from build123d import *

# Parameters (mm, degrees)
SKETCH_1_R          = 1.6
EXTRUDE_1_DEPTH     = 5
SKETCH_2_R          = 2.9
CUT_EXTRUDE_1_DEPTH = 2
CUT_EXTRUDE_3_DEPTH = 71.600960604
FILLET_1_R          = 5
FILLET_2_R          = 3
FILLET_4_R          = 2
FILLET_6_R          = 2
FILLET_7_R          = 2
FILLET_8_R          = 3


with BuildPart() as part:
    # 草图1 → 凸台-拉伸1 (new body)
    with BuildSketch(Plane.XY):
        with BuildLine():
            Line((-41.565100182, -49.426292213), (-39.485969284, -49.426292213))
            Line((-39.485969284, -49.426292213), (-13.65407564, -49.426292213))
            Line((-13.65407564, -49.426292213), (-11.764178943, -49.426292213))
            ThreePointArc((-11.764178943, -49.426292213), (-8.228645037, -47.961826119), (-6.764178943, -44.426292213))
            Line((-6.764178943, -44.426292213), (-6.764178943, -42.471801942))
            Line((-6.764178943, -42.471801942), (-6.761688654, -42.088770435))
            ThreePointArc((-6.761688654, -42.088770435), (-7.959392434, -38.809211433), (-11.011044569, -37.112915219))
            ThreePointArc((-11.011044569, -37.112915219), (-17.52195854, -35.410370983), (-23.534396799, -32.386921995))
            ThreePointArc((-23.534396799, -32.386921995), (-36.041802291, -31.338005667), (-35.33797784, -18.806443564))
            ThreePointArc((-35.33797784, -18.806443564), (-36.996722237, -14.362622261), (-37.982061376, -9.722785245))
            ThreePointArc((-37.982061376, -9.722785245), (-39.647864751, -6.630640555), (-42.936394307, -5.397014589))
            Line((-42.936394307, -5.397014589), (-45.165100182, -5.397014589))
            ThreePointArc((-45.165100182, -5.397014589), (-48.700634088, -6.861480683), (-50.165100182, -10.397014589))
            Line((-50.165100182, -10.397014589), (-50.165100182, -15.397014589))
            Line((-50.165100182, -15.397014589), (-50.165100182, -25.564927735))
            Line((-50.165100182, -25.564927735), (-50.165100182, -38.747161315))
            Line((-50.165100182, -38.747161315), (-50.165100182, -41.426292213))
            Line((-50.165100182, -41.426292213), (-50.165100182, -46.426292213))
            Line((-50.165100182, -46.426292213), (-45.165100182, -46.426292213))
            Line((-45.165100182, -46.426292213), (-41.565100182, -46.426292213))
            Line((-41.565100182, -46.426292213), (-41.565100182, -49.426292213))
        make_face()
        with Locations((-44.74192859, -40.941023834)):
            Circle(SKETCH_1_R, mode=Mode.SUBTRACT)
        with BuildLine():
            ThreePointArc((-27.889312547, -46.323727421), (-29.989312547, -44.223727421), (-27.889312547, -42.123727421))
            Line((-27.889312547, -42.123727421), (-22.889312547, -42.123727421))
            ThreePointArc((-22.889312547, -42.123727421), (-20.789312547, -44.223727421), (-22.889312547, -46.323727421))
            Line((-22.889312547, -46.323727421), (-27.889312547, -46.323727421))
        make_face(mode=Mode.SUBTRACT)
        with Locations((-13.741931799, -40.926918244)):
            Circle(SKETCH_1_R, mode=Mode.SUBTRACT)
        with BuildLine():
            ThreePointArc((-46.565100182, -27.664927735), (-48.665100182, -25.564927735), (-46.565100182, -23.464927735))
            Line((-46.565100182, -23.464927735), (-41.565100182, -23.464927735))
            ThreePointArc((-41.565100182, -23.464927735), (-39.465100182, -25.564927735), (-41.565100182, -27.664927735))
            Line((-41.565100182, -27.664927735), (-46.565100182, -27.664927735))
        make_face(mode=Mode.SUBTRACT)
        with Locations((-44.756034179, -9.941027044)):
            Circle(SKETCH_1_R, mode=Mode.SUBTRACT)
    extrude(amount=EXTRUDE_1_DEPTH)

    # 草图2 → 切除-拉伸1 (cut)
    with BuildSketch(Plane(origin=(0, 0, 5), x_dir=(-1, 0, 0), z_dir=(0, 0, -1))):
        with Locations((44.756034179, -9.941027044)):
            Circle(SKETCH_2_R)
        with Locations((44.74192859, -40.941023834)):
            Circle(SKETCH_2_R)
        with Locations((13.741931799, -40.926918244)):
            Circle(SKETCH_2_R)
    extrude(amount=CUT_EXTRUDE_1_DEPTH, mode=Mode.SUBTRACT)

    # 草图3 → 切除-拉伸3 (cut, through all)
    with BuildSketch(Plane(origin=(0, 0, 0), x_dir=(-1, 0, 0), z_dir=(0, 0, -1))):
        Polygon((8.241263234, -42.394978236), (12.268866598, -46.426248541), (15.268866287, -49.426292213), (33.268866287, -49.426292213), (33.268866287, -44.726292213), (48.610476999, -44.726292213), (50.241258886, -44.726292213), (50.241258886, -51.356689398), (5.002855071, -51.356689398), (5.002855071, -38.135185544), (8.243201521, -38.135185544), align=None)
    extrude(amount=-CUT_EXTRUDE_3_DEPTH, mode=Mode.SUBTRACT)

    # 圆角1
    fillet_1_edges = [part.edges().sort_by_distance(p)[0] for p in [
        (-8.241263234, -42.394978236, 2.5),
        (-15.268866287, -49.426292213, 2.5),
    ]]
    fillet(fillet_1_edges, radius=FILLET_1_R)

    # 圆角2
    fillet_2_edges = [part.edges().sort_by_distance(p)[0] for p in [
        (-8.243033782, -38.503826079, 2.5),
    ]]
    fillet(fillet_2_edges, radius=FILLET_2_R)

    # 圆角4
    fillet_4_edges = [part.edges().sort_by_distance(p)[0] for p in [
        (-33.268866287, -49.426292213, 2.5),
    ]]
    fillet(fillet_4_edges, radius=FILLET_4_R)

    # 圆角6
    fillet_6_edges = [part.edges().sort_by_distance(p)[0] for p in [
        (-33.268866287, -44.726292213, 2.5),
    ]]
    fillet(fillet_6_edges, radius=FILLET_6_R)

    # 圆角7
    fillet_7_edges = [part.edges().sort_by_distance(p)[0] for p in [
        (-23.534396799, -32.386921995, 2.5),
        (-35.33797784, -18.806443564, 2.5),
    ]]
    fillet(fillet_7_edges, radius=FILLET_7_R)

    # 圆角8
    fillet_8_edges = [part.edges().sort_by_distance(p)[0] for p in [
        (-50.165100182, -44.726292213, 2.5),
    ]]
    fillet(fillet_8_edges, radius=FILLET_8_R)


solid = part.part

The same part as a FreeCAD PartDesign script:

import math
import FreeCAD as App
import Part
import Sketcher

V = App.Vector
Q = App.Units.Quantity


def edges_at(feature, points):
    """Names of the edges that pass closest to the given points."""
    edges = feature.Shape.Edges
    near = lambda p: min(range(len(edges)), key=lambda i: edges[i].distToShape(Part.Vertex(*p))[0])
    return sorted({f"Edge{near(p) + 1}" for p in points})

doc = App.newDocument("Part")
params = doc.addObject("Spreadsheet::Sheet", "Params")
for row, (alias, value) in enumerate([
    ("sketch1_radius", "5 mm"),
    ("sketch1_radius2", "9 mm"),
    ("sketch1_diameter", "3.2 mm"),
    ("sketch1_radius3", "2.1 mm"),
    ("sketch1_width", "5 mm"),
    ("pad1_length", "5 mm"),
    ("sketch2_diameter", "5.8 mm"),
    ("pocket1_length", "2 mm"),
    ("sketch3_width", "18 mm"),
    ("sketch3_height", "4.7 mm"),
    ("fillet_radius", "5 mm"),
    ("fillet2_radius", "3 mm"),
    ("fillet3_radius", "2 mm"),
    ("fillet4_radius", "2 mm"),
    ("fillet5_radius", "2 mm"),
    ("fillet6_radius", "3 mm"),
], start=1):
    params.set(f"A{row}", alias)
    params.set(f"B{row}", "=" + value)
    params.setAlias(f"B{row}", alias)

body = doc.addObject("PartDesign::Body", "Body")

# Sketch on XY plane
sketch1 = body.newObject("Sketcher::SketchObject", "Sketch")
sketch1.AttachmentSupport = (doc.getObject("XY_Plane"), [""])
sketch1.MapMode = "FlatFace"
sketch1.addGeometry(Part.LineSegment(V(-41.5651, -49.426292, 0), V(-11.764179, -49.426292, 0)), False)
sketch1.addGeometry(Part.ArcOfCircle(Part.Circle(V(-11.764179, -44.426292, 0), V(0, 0, 1), 5), math.radians(-90), math.radians(0)), False)
sketch1.addGeometry(Part.LineSegment(V(-6.764179, -44.426292, 0), V(-6.764179, -42.471802, 0)), False)
sketch1.addGeometry(Part.LineSegment(V(-6.764179, -42.471802, 0), V(-6.761689, -42.08877, 0)), False)
sketch1.addGeometry(Part.ArcOfCircle(Part.Circle(V(-11.761583, -42.056263, 0), V(0, 0, 1), 5), math.radians(-0.372505), math.radians(81.366833)), False)
sketch1.addGeometry(Part.ArcOfCircle(Part.Circle(V(-6.195685, -5.397015, 0), V(0, 0, 1), 32.079371), math.radians(-122.717284), math.radians(-98.633167)), False)
sketch1.addGeometry(Part.ArcOfCircle(Part.Circle(V(-29.248983, -25.433973, 0), V(0, 0, 1), 9), math.radians(132.57502), math.radians(309.416574)), False)
sketch1.addGeometry(Part.ArcOfCircle(Part.Circle(V(-6.195684, -5.397015, 0), V(0, 0, 1), 32.079371), math.radians(-172.250293), math.radians(-155.291121)), False)
sketch1.addGeometry(Part.ArcOfCircle(Part.Circle(V(-42.936394, -10.397015, 0), V(0, 0, 1), 5), math.radians(7.749707), math.radians(90)), False)
sketch1.addGeometry(Part.LineSegment(V(-42.936394, -5.397015, 0), V(-45.1651, -5.397015, 0)), False)
sketch1.addGeometry(Part.ArcOfCircle(Part.Circle(V(-45.1651, -10.397015, 0), V(0, 0, 1), 5), math.radians(90), math.radians(180)), False)
sketch1.addGeometry(Part.LineSegment(V(-50.1651, -10.397015, 0), V(-50.1651, -46.426292, 0)), False)
sketch1.addGeometry(Part.LineSegment(V(-50.1651, -46.426292, 0), V(-41.5651, -46.426292, 0)), False)
sketch1.addGeometry(Part.LineSegment(V(-41.5651, -46.426292, 0), V(-41.5651, -49.426292, 0)), False)
sketch1.addGeometry(Part.Circle(V(-44.741929, -40.941024, 0), V(0, 0, 1), 1.6), False)
sketch1.addGeometry(Part.LineSegment(V(-22.889313, -46.323727, 0), V(-27.889313, -46.323727, 0)), False)
sketch1.addGeometry(Part.ArcOfCircle(Part.Circle(V(-27.889313, -44.223727, 0), V(0, 0, 1), 2.1), math.radians(90), math.radians(270)), False)
sketch1.addGeometry(Part.LineSegment(V(-27.889313, -42.123727, 0), V(-22.889313, -42.123727, 0)), False)
sketch1.addGeometry(Part.ArcOfCircle(Part.Circle(V(-22.889313, -44.223727, 0), V(0, 0, 1), 2.1), math.radians(-90), math.radians(90)), False)
sketch1.addGeometry(Part.Circle(V(-13.741932, -40.926918, 0), V(0, 0, 1), 1.6), False)
sketch1.addGeometry(Part.LineSegment(V(-41.5651, -27.664928, 0), V(-46.5651, -27.664928, 0)), False)
sketch1.addGeometry(Part.ArcOfCircle(Part.Circle(V(-46.5651, -25.564928, 0), V(0, 0, 1), 2.1), math.radians(90), math.radians(270)), False)
sketch1.addGeometry(Part.LineSegment(V(-46.5651, -23.464928, 0), V(-41.5651, -23.464928, 0)), False)
sketch1.addGeometry(Part.ArcOfCircle(Part.Circle(V(-41.5651, -25.564928, 0), V(0, 0, 1), 2.1), math.radians(-90), math.radians(90)), False)
sketch1.addGeometry(Part.Circle(V(-44.756034, -9.941027, 0), V(0, 0, 1), 1.6), False)
sketch1.addConstraint(Sketcher.Constraint("Tangent", 0, 2, 1, 1))
sketch1.addConstraint(Sketcher.Constraint("Tangent", 1, 2, 2, 1))
sketch1.addConstraint(Sketcher.Constraint("Coincident", 2, 2, 3, 1))
sketch1.addConstraint(Sketcher.Constraint("Tangent", 3, 2, 4, 1))
sketch1.addConstraint(Sketcher.Constraint("Tangent", 4, 2, 5, 2))
sketch1.addConstraint(Sketcher.Constraint("Coincident", 5, 1, 6, 2))
sketch1.addConstraint(Sketcher.Constraint("Coincident", 6, 1, 7, 2))
sketch1.addConstraint(Sketcher.Constraint("Tangent", 7, 1, 8, 1))
sketch1.addConstraint(Sketcher.Constraint("Tangent", 8, 2, 9, 1))
sketch1.addConstraint(Sketcher.Constraint("Tangent", 9, 2, 10, 1))
sketch1.addConstraint(Sketcher.Constraint("Tangent", 10, 2, 11, 1))
sketch1.addConstraint(Sketcher.Constraint("Coincident", 11, 2, 12, 1))
sketch1.addConstraint(Sketcher.Constraint("Coincident", 12, 2, 13, 1))
sketch1.addConstraint(Sketcher.Constraint("Coincident", 13, 2, 0, 1))
sketch1.addConstraint(Sketcher.Constraint("Tangent", 15, 2, 16, 2))
sketch1.addConstraint(Sketcher.Constraint("Tangent", 16, 1, 17, 1))
sketch1.addConstraint(Sketcher.Constraint("Tangent", 17, 2, 18, 2))
sketch1.addConstraint(Sketcher.Constraint("Tangent", 18, 1, 15, 1))
sketch1.addConstraint(Sketcher.Constraint("Tangent", 20, 2, 21, 2))
sketch1.addConstraint(Sketcher.Constraint("Tangent", 21, 1, 22, 1))
sketch1.addConstraint(Sketcher.Constraint("Tangent", 22, 2, 23, 2))
sketch1.addConstraint(Sketcher.Constraint("Tangent", 23, 1, 20, 1))
sketch1.addConstraint(Sketcher.Constraint("Horizontal", 0))
sketch1.addConstraint(Sketcher.Constraint("Vertical", 2))
sketch1.addConstraint(Sketcher.Constraint("Horizontal", 9))
sketch1.addConstraint(Sketcher.Constraint("Vertical", 11))
sketch1.addConstraint(Sketcher.Constraint("Horizontal", 12))
sketch1.addConstraint(Sketcher.Constraint("Vertical", 13))
sketch1.addConstraint(Sketcher.Constraint("Horizontal", 15))
sketch1.addConstraint(Sketcher.Constraint("Horizontal", 17))
sketch1.addConstraint(Sketcher.Constraint("Horizontal", 20))
sketch1.addConstraint(Sketcher.Constraint("Horizontal", 22))
sketch1.addConstraint(Sketcher.Constraint("Coincident", 7, 3, 5, 3))
sketch1.addConstraint(Sketcher.Constraint("Equal", 1, 4))
sketch1.addConstraint(Sketcher.Constraint("Equal", 5, 7))
sketch1.addConstraint(Sketcher.Constraint("Equal", 4, 8))
sketch1.addConstraint(Sketcher.Constraint("Equal", 8, 10))
sketch1.addConstraint(Sketcher.Constraint("Equal", 14, 19))
sketch1.addConstraint(Sketcher.Constraint("Equal", 18, 21))
sketch1.addConstraint(Sketcher.Constraint("Equal", 19, 24))
sketch1.addConstraint(Sketcher.Constraint("Horizontal", 7, 3, 8, 2))
sketch1.addConstraint(Sketcher.Constraint("Vertical", 23, 3, 12, 2))
sketch1.addConstraint(Sketcher.Constraint("Equal", 17, 20))
sketch1.addConstraint(Sketcher.Constraint("Radius", 1, Q("5 mm")))
sketch1.addConstraint(Sketcher.Constraint("Radius", 6, Q("9 mm")))
sketch1.addConstraint(Sketcher.Constraint("Diameter", 14, Q("3.2 mm")))
sketch1.addConstraint(Sketcher.Constraint("Radius", 16, Q("2.1 mm")))
sketch1.addConstraint(Sketcher.Constraint("DistanceX", 15, 2, 15, 1, Q("5 mm")))
sketch1.addConstraint(Sketcher.Constraint("DistanceY", 13, 2, 13, 1, Q("3 mm")))
sketch1.addConstraint(Sketcher.Constraint("DistanceX", 12, 1, 12, 2, Q("8.6 mm")))
sketch1.addConstraint(Sketcher.Constraint("Radius", 5, Q("32.079371 mm")))
sketch1.addConstraint(Sketcher.Constraint("DistanceX", 0, 1, 0, 2, Q("29.800921 mm")))
sketch1.addConstraint(Sketcher.Constraint("DistanceY", 2, 1, 2, 2, Q("1.95449 mm")))
sketch1.addConstraint(Sketcher.Constraint("DistanceX", 10, 3, -1, 1, Q("45.1651 mm")))
sketch1.addConstraint(Sketcher.Constraint("DistanceY", 2, 2, -1, 1, Q("42.471802 mm")))
sketch1.addConstraint(Sketcher.Constraint("DistanceX", 4, 3, 5, 3, Q("5.565898 mm")))
sketch1.addConstraint(Sketcher.Constraint("DistanceX", 6, 3, 4, 3, Q("17.4874 mm")))
sketch1.addConstraint(Sketcher.Constraint("DistanceY", 16, 3, 21, 3, Q("18.6588 mm")))
sketch1.addConstraint(Sketcher.Constraint("DistanceY", 21, 3, 24, 3, Q("15.623901 mm")))
sketch1.addConstraint(Sketcher.Constraint("Distance", 3, Q("0.38304 mm")))
sketch1.addConstraint(Sketcher.Constraint("DistanceX", 9, 2, 9, 1, Q("2.228706 mm")))
sketch1.addConstraint(Sketcher.Constraint("DistanceX", 14, 3, -1, 1, Q("44.741929 mm")))
sketch1.addConstraint(Sketcher.Constraint("DistanceX", 19, 3, -1, 1, Q("13.741932 mm")))
sketch1.addConstraint(Sketcher.Constraint("DistanceY", 19, 3, -1, 1, Q("40.926918 mm")))
sketch1.addConstraint(Sketcher.Constraint("DistanceY", 5, 1, -1, 1, Q("32.386922 mm")))
sketch1.addConstraint(Sketcher.Constraint("DistanceY", 14, 3, 6, 3, Q("15.507051 mm")))
sketch1.addConstraint(Sketcher.Constraint("DistanceX", 16, 3, 4, 3, Q("16.12773 mm")))
sketch1.addConstraint(Sketcher.Constraint("DistanceY", 18, 3, 19, 3, Q("3.296809 mm")))
sketch1.addConstraint(Sketcher.Constraint("DistanceX", 24, 3, 8, 3, Q("1.81964 mm")))
sketch1.setExpression("Constraints[43]", "Params.sketch1_radius")
sketch1.setExpression("Constraints[44]", "Params.sketch1_radius2")
sketch1.setExpression("Constraints[45]", "Params.sketch1_diameter")
sketch1.setExpression("Constraints[46]", "Params.sketch1_radius3")
sketch1.setExpression("Constraints[47]", "Params.sketch1_width")
pad1 = body.newObject("PartDesign::Pad", "Pad")
pad1.Profile = sketch1
pad1.setExpression("Length", "Params.pad1_length")

# Sketch on XY plane
sketch2 = body.newObject("Sketcher::SketchObject", "Sketch001")
sketch2.AttachmentSupport = (doc.getObject("XY_Plane"), [""])
sketch2.MapMode = "FlatFace"
sketch2.AttachmentOffset = App.Placement(V(0, 0, 5), App.Rotation())
sketch2.addGeometry(Part.Circle(V(-44.756034, -9.941027, 0), V(0, 0, 1), 2.9), False)
sketch2.addGeometry(Part.Circle(V(-44.741929, -40.941024, 0), V(0, 0, 1), 2.9), False)
sketch2.addGeometry(Part.Circle(V(-13.741932, -40.926918, 0), V(0, 0, 1), 2.9), False)
sketch2.addConstraint(Sketcher.Constraint("Equal", 0, 1))
sketch2.addConstraint(Sketcher.Constraint("Equal", 1, 2))
sketch2.addConstraint(Sketcher.Constraint("Diameter", 0, Q("5.8 mm")))
sketch2.addConstraint(Sketcher.Constraint("DistanceX", 1, 3, -1, 1, Q("44.741929 mm")))
sketch2.addConstraint(Sketcher.Constraint("DistanceX", 2, 3, -1, 1, Q("13.741932 mm")))
sketch2.addConstraint(Sketcher.Constraint("DistanceY", 2, 3, -1, 1, Q("40.926918 mm")))
sketch2.addConstraint(Sketcher.Constraint("DistanceY", 2, 3, 0, 3, Q("30.985891 mm")))
sketch2.addConstraint(Sketcher.Constraint("DistanceX", 0, 3, -1, 1, Q("44.756034 mm")))
sketch2.addConstraint(Sketcher.Constraint("DistanceY", 1, 3, -1, 1, Q("40.941024 mm")))
sketch2.setExpression("Constraints[2]", "Params.sketch2_diameter")
pocket1 = body.newObject("PartDesign::Pocket", "Pocket")
pocket1.Profile = sketch2
pocket1.setExpression("Length", "Params.pocket1_length")

# Sketch on XY plane
sketch3 = body.newObject("Sketcher::SketchObject", "Sketch002")
sketch3.AttachmentSupport = (doc.getObject("XY_Plane"), [""])
sketch3.MapMode = "FlatFace"
sketch3.addGeometry(Part.LineSegment(V(-12.268867, -46.426249, 0), V(-8.241263, -42.394978, 0)), False)
sketch3.addGeometry(Part.LineSegment(V(-8.241263, -42.394978, 0), V(-8.243202, -38.135186, 0)), False)
sketch3.addGeometry(Part.LineSegment(V(-8.243202, -38.135186, 0), V(-5.002855, -38.135186, 0)), False)
sketch3.addGeometry(Part.LineSegment(V(-5.002855, -38.135186, 0), V(-5.002855, -51.356689, 0)), False)
sketch3.addGeometry(Part.LineSegment(V(-5.002855, -51.356689, 0), V(-50.241259, -51.356689, 0)), False)
sketch3.addGeometry(Part.LineSegment(V(-50.241259, -51.356689, 0), V(-50.241259, -44.726292, 0)), False)
sketch3.addGeometry(Part.LineSegment(V(-50.241259, -44.726292, 0), V(-33.268866, -44.726292, 0)), False)
sketch3.addGeometry(Part.LineSegment(V(-33.268866, -44.726292, 0), V(-33.268866, -49.426292, 0)), False)
sketch3.addGeometry(Part.LineSegment(V(-33.268866, -49.426292, 0), V(-15.268866, -49.426292, 0)), False)
sketch3.addGeometry(Part.LineSegment(V(-15.268866, -49.426292, 0), V(-12.268867, -46.426249, 0)), False)
sketch3.addConstraint(Sketcher.Constraint("Coincident", 0, 2, 1, 1))
sketch3.addConstraint(Sketcher.Constraint("Coincident", 1, 2, 2, 1))
sketch3.addConstraint(Sketcher.Constraint("Coincident", 2, 2, 3, 1))
sketch3.addConstraint(Sketcher.Constraint("Coincident", 3, 2, 4, 1))
sketch3.addConstraint(Sketcher.Constraint("Coincident", 4, 2, 5, 1))
sketch3.addConstraint(Sketcher.Constraint("Coincident", 5, 2, 6, 1))
sketch3.addConstraint(Sketcher.Constraint("Coincident", 6, 2, 7, 1))
sketch3.addConstraint(Sketcher.Constraint("Coincident", 7, 2, 8, 1))
sketch3.addConstraint(Sketcher.Constraint("Coincident", 8, 2, 9, 1))
sketch3.addConstraint(Sketcher.Constraint("Coincident", 9, 2, 0, 1))
sketch3.addConstraint(Sketcher.Constraint("Horizontal", 2))
sketch3.addConstraint(Sketcher.Constraint("Vertical", 3))
sketch3.addConstraint(Sketcher.Constraint("Horizontal", 4))
sketch3.addConstraint(Sketcher.Constraint("Vertical", 5))
sketch3.addConstraint(Sketcher.Constraint("Horizontal", 6))
sketch3.addConstraint(Sketcher.Constraint("Vertical", 7))
sketch3.addConstraint(Sketcher.Constraint("Horizontal", 8))
sketch3.addConstraint(Sketcher.Constraint("DistanceX", 8, 1, 8, 2, Q("18 mm")))
sketch3.addConstraint(Sketcher.Constraint("DistanceY", 7, 2, 7, 1, Q("4.7 mm")))
sketch3.addConstraint(Sketcher.Constraint("DistanceX", 8, 2, 9, 2, Q("3 mm")))
sketch3.addConstraint(Sketcher.Constraint("DistanceX", 1, 2, -1, 1, Q("8.243202 mm")))
sketch3.addConstraint(Sketcher.Constraint("Distance", 9, Q("4.242671 mm")))
sketch3.addConstraint(Sketcher.Constraint("DistanceX", 2, 1, 2, 2, Q("3.240346 mm")))
sketch3.addConstraint(Sketcher.Constraint("DistanceX", 4, 2, 4, 1, Q("45.238404 mm")))
sketch3.addConstraint(Sketcher.Constraint("DistanceX", 6, 1, 6, 2, Q("16.972393 mm")))
sketch3.addConstraint(Sketcher.Constraint("DistanceY", 3, 2, 3, 1, Q("13.221504 mm")))
sketch3.addConstraint(Sketcher.Constraint("DistanceY", 5, 1, 5, 2, Q("6.630397 mm")))
sketch3.addConstraint(Sketcher.Constraint("DistanceY", 0, 2, -1, 1, Q("42.394978 mm")))
sketch3.addConstraint(Sketcher.Constraint("DistanceY", 3, 2, -1, 1, Q("51.356689 mm")))
sketch3.addConstraint(Sketcher.Constraint("DistanceX", 1, 2, 0, 2, Q("0.001938 mm")))
sketch3.setExpression("Constraints[17]", "Params.sketch3_width")
sketch3.setExpression("Constraints[18]", "Params.sketch3_height")
pocket2 = body.newObject("PartDesign::Pocket", "Pocket001")
pocket2.Profile = sketch3
pocket2.Type = "ThroughAll"
pocket2.Reversed = True
doc.recompute()

fillet = body.newObject("PartDesign::Fillet", "Fillet")
fillet.Base = (pocket2, edges_at(pocket2, [(-8.241, -42.395, 2.5), (-15.269, -49.426, 2.5)]))
fillet.setExpression("Radius", "Params.fillet_radius")
doc.recompute()

fillet2 = body.newObject("PartDesign::Fillet", "Fillet001")
fillet2.Base = (fillet, edges_at(fillet, [(-8.243, -38.504, 2.5)]))
fillet2.setExpression("Radius", "Params.fillet2_radius")
doc.recompute()

fillet3 = body.newObject("PartDesign::Fillet", "Fillet002")
fillet3.Base = (fillet2, edges_at(fillet2, [(-33.269, -49.426, 2.5)]))
fillet3.setExpression("Radius", "Params.fillet3_radius")
doc.recompute()

fillet4 = body.newObject("PartDesign::Fillet", "Fillet003")
fillet4.Base = (fillet3, edges_at(fillet3, [(-33.269, -44.726, 2.5)]))
fillet4.setExpression("Radius", "Params.fillet4_radius")
doc.recompute()

fillet5 = body.newObject("PartDesign::Fillet", "Fillet004")
fillet5.Base = (fillet4, edges_at(fillet4, [(-23.534, -32.387, 2.5), (-35.338, -18.806, 2.5)]))
fillet5.setExpression("Radius", "Params.fillet5_radius")
doc.recompute()

fillet6 = body.newObject("PartDesign::Fillet", "Fillet005")
fillet6.Base = (fillet5, edges_at(fillet5, [(-50.165, -44.726, 2.5)]))
fillet6.setExpression("Radius", "Params.fillet6_radius")

doc.recompute()
